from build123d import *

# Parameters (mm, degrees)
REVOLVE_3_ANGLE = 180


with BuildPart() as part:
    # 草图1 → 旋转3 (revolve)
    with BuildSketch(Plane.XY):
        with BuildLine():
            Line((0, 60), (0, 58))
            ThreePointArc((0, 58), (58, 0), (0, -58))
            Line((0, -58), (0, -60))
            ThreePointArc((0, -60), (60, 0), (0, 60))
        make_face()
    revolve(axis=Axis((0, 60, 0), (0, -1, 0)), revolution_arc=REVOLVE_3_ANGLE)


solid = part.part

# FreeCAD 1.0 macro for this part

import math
import FreeCAD as App
import Part
import Sketcher

doc = App.newDocument("Part")
params = doc.addObject("Spreadsheet::Sheet", "Params")
for row, (alias, value) in enumerate([
    ("sketch1_radius", "58 mm"),
    ("sketch1_radius2", "60 mm"),
    ("revolution_angle", "180 deg"),
], start=1):
    params.set(f"A{row}", alias)
    params.set(f"B{row}", "=" + value)
    params.setAlias(f"B{row}", alias)

body = doc.addObject("PartDesign::Body", "Body")

sketch1 = doc.addObject("Sketcher::SketchObject", "Sketch")
body.addObject(sketch1)
sketch1.AttachmentSupport = (doc.XY_Plane, [""])
sketch1.MapMode = "FlatFace"
sketch1.addGeometry([
    Part.LineSegment(App.Vector(0, 60, 0), App.Vector(0, 58, 0)),
    Part.ArcOfCircle(Part.Circle(App.Vector(0, 0, 0), App.Vector(0, 0, 1), 58), math.radians(-90), math.radians(90)),
    Part.LineSegment(App.Vector(0, -58, 0), App.Vector(0, -60, 0)),
    Part.ArcOfCircle(Part.Circle(App.Vector(0, 0, 0), App.Vector(0, 0, 1), 60), math.radians(-90), math.radians(90)),
], False)
sketch1.addConstraint([
    Sketcher.Constraint("Coincident", 0, 2, 1, 2),
    Sketcher.Constraint("Coincident", 1, 1, 2, 1),
    Sketcher.Constraint("Coincident", 2, 2, 3, 1),
    Sketcher.Constraint("Coincident", 3, 2, 0, 1),
    Sketcher.Constraint("Vertical", 0),
    Sketcher.Constraint("Vertical", 2),
    Sketcher.Constraint("Coincident", 1, 3, -1, 1),
    Sketcher.Constraint("Coincident", 3, 3, -1, 1),
    Sketcher.Constraint("PointOnObject", 0, 2, -2),
    Sketcher.Constraint("PointOnObject", 1, 1, -2),
    Sketcher.Constraint("Radius", 1, 58.0),
    Sketcher.Constraint("Radius", 3, 60.0),
])
sketch1.setExpression("Constraints[10]", "Params.sketch1_radius")
sketch1.setExpression("Constraints[11]", "Params.sketch1_radius2")
revolution = doc.addObject("PartDesign::Revolution", "Revolution")
body.addObject(revolution)
revolution.Profile = sketch1
revolution.ReferenceAxis = (sketch1, ["V_Axis"])
revolution.setExpression("Angle", "Params.revolution_angle")
revolution.Reversed = True

doc.recompute()
